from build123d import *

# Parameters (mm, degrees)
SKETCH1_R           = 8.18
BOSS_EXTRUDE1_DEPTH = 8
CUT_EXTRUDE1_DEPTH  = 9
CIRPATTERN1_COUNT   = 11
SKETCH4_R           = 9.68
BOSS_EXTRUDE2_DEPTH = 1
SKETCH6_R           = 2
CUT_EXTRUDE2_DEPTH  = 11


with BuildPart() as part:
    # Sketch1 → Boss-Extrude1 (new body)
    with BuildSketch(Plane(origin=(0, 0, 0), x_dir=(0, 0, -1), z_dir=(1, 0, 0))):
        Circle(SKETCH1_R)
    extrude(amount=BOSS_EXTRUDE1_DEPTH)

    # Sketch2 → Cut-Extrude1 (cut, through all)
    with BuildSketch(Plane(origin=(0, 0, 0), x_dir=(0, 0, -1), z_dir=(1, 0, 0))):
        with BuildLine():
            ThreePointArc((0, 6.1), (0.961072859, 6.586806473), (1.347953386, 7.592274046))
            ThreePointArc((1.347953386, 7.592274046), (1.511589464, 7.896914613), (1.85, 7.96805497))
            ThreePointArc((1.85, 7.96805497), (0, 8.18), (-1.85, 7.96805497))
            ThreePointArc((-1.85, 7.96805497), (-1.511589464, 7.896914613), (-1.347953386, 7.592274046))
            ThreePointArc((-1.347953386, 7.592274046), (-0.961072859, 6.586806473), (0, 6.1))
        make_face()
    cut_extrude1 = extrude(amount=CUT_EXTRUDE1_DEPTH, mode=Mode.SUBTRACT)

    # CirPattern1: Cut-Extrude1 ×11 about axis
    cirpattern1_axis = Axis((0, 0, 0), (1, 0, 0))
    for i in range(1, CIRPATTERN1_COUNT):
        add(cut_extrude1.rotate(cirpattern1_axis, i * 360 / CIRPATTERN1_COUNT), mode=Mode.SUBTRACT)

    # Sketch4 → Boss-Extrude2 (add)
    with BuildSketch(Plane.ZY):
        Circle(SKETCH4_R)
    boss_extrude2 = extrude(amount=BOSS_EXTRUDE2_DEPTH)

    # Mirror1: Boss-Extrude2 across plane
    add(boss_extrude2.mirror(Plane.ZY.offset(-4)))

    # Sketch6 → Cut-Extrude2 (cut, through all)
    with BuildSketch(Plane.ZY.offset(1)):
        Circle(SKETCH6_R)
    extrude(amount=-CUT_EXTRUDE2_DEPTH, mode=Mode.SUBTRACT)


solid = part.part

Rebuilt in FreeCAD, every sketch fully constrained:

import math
import FreeCAD as App
import Part
import Sketcher
from FreeCAD import Vector

doc = App.newDocument("Part")
body = doc.addObject("PartDesign::Body", "Body")

sketch1 = body.newObject("Sketcher::SketchObject", "Sketch")
sketch1.AttachmentSupport = (doc.getObject("YZ_Plane"), [""])
sketch1.MapMode = "FlatFace"
sketch1.addGeometry(Part.Circle(Vector(0, 0, 0), Vector(0, 0, 1), 8.18), False)
sketch1.addConstraint([
    Sketcher.Constraint("Coincident", 0, 3, -1, 1),
    Sketcher.Constraint("Diameter", 0, 16.36),
])
pad1 = body.newObject("PartDesign::Pad", "Pad")
pad1.Profile = sketch1
pad1.Length = 8

sketch2 = body.newObject("Sketcher::SketchObject", "Sketch001")
sketch2.AttachmentSupport = (doc.getObject("YZ_Plane"), [""])
sketch2.MapMode = "FlatFace"
sketch2.addGeometry([
    Part.ArcOfCircle(Part.Circle(Vector(7.592274, 0.152047, 0), Vector(0, 0, 1), 1.5), math.radians(-174.182255), math.radians(-90)),
    Part.ArcOfCircle(Part.Circle(Vector(7.568678, -1.757274, 0), Vector(0, 0, 1), 0.41), math.radians(-13.07118), math.radians(86.700747)),
    Part.ArcOfCircle(Part.Circle(Vector(0, 0, 0), Vector(0, 0, 1), 8.18), math.radians(-13.07118), math.radians(13.07118)),
    Part.ArcOfCircle(Part.Circle(Vector(7.568678, 1.757274, 0), Vector(0, 0, 1), 0.41), math.radians(-86.700747), math.radians(13.07118)),
    Part.ArcOfCircle(Part.Circle(Vector(7.592274, -0.152047, 0), Vector(0, 0, 1), 1.5), math.radians(90), math.radians(174.182255)),
], False)
sketch2.addConstraint([
    Sketcher.Constraint("Coincident", 0, 2, 1, 2),
    Sketcher.Constraint("Tangent", 1, 1, 2, 1),
    Sketcher.Constraint("Tangent", 2, 2, 3, 2),
    Sketcher.Constraint("Coincident", 3, 1, 4, 1),
    Sketcher.Constraint("Coincident", 4, 2, 0, 1),
    Sketcher.Constraint("Coincident", 2, 3, -1, 1),
    Sketcher.Constraint("Equal", 1, 3),
    Sketcher.Constraint("Equal", 0, 4),
    Sketcher.Constraint("Symmetric", 0, 3, 4, 3, -1),
    Sketcher.Constraint("Vertical", 1, 3, 3, 3),
    Sketcher.Constraint("Vertical", 4, 3, 0, 2),
    Sketcher.Constraint("Radius", 0, 1.5),
    Sketcher.Constraint("Radius", 1, 0.41),
    Sketcher.Constraint("Radius", 2, 8.18),
    Sketcher.Constraint("DistanceX", -1, 1, 4, 2, 6.1),
    Sketcher.Constraint("DistanceY", 1, 1, -1, 1, 1.85),
])
pocket1 = body.newObject("PartDesign::Pocket", "Pocket")
pocket1.Profile = sketch2
pocket1.Type = "ThroughAll"
pocket1.Reversed = True
doc.recompute()

polarpattern = body.newObject("PartDesign::PolarPattern", "PolarPattern")
polarpattern.Originals = [pocket1]
polarpattern.Axis = (doc.getObject("X_Axis"), [""])
polarpattern.Angle = 360
polarpattern.Occurrences = 11
body.Tip = polarpattern

sketch3 = body.newObject("Sketcher::SketchObject", "Sketch002")
sketch3.AttachmentSupport = (doc.getObject("YZ_Plane"), [""])
sketch3.MapMode = "FlatFace"
sketch3.addGeometry(Part.Circle(Vector(0, 0, 0), Vector(0, 0, 1), 9.68), False)
sketch3.addConstraint([
    Sketcher.Constraint("Coincident", 0, 3, -1, 1),
    Sketcher.Constraint("Diameter", 0, 19.36),
])
pad2 = body.newObject("PartDesign::Pad", "Pad001")
pad2.Profile = sketch3
pad2.Length = 1
pad2.Reversed = True
doc.recompute()

datumplane = body.newObject("PartDesign::Plane", "DatumPlane")
datumplane.AttachmentSupport = (doc.getObject("YZ_Plane"), [""])
datumplane.MapMode = "FlatFace"
datumplane.AttachmentOffset = App.Placement(Vector(0, 0, 4), App.Rotation())
mirrored = body.newObject("PartDesign::Mirrored", "Mirrored")
mirrored.Originals = [pad2]
mirrored.MirrorPlane = (datumplane, [""])
body.Tip = mirrored

sketch4 = body.newObject("Sketcher::SketchObject", "Sketch003")
sketch4.AttachmentSupport = (doc.getObject("YZ_Plane"), [""])
sketch4.MapMode = "FlatFace"
sketch4.AttachmentOffset = App.Placement(Vector(0, 0, -1), App.Rotation())
sketch4.addGeometry(Part.Circle(Vector(0, 0, 0), Vector(0, 0, 1), 2), False)
sketch4.addConstraint([
    Sketcher.Constraint("Coincident", 0, 3, -1, 1),
    Sketcher.Constraint("Diameter", 0, 4.0),
])
pocket2 = body.newObject("PartDesign::Pocket", "Pocket001")
pocket2.Profile = sketch4
pocket2.Type = "ThroughAll"
pocket2.Reversed = True

doc.recompute()
